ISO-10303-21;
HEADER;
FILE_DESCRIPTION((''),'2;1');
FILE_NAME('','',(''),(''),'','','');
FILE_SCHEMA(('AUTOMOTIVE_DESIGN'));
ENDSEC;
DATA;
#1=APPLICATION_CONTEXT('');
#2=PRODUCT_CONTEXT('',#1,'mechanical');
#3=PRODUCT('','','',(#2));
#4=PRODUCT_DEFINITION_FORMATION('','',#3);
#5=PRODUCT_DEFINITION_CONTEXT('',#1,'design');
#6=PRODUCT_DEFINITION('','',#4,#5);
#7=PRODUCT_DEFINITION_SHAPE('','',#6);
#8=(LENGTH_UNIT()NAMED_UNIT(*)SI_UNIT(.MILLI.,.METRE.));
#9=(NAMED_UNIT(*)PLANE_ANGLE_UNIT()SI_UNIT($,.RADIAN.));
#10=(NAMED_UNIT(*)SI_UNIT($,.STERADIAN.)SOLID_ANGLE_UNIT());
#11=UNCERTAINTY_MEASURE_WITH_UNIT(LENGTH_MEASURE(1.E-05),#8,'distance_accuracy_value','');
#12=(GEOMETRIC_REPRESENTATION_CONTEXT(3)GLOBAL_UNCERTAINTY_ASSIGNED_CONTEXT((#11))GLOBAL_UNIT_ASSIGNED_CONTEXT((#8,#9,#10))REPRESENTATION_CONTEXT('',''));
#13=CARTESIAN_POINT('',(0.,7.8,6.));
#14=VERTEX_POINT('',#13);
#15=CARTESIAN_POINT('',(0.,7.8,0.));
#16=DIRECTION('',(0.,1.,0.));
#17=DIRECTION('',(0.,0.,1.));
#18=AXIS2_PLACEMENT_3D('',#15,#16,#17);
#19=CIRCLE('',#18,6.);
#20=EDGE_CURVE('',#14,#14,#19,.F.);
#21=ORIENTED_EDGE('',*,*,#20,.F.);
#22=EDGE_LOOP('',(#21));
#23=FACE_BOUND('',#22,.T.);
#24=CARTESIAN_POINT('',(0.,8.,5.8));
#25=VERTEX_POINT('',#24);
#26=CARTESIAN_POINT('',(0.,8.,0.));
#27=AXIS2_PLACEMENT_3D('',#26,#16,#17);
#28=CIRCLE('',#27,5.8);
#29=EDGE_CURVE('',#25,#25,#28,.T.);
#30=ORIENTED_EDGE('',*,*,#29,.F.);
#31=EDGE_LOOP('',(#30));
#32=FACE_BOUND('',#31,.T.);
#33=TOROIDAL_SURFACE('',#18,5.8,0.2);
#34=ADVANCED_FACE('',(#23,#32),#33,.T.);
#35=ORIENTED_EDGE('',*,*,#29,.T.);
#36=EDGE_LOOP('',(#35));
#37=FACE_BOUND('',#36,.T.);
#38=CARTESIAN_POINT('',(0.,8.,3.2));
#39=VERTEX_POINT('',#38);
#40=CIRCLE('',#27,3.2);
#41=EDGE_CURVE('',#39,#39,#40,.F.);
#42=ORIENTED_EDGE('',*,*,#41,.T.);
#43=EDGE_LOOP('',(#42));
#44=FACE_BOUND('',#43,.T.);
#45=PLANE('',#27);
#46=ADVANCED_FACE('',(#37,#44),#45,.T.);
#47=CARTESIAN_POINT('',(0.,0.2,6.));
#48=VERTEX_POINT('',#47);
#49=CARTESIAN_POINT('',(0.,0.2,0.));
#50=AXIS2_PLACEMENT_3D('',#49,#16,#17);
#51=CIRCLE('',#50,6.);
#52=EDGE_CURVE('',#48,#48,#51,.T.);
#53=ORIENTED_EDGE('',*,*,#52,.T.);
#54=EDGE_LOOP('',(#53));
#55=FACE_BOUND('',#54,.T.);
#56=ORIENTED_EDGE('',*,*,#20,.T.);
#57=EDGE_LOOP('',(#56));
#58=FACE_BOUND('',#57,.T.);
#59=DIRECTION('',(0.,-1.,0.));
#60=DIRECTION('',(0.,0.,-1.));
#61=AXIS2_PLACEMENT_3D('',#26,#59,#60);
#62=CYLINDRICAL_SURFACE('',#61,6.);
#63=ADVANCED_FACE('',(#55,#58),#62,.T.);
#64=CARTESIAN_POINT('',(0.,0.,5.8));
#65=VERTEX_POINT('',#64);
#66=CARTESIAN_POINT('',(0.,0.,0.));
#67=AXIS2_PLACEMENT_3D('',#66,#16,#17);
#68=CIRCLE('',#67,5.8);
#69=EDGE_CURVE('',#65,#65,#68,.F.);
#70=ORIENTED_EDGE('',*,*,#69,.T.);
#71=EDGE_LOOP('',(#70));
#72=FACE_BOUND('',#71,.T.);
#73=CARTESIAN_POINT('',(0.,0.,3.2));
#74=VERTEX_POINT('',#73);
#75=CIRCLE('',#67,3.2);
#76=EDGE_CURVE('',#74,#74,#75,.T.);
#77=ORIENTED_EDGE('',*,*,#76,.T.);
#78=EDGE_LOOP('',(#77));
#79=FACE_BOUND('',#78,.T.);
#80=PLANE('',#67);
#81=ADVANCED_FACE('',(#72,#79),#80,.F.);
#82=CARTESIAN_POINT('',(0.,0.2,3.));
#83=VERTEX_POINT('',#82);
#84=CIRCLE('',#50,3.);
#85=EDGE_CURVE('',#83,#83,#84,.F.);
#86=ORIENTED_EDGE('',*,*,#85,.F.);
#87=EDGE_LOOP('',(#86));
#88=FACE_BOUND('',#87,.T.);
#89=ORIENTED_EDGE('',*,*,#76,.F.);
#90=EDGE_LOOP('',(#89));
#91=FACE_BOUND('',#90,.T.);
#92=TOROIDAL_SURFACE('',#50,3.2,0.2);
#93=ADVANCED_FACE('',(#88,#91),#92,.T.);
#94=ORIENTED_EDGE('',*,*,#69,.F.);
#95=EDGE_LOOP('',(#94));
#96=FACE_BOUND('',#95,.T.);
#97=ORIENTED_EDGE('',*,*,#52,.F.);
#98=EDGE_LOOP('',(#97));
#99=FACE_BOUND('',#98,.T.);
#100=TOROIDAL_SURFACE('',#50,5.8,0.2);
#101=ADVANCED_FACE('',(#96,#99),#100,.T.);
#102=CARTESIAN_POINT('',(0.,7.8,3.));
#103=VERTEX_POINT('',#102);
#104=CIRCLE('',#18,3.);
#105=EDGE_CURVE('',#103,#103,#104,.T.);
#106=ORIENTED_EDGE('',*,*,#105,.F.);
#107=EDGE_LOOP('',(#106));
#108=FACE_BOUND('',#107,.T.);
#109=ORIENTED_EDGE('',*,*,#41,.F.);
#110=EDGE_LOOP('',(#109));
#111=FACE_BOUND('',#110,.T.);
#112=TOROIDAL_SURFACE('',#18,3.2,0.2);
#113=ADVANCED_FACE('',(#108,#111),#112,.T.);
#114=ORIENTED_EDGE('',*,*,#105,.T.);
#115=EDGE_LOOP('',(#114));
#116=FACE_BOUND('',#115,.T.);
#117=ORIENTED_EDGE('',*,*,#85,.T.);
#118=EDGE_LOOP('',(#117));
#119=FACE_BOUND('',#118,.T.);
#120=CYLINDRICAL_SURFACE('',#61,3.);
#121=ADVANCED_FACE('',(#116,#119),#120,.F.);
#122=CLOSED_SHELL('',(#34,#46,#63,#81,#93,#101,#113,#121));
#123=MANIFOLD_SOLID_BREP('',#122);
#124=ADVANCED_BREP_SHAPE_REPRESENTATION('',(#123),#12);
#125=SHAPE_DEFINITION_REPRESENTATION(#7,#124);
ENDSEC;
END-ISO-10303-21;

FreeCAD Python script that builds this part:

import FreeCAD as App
import Part
import Sketcher

V = App.Vector


def edges_at(feature, points):
    """Names of the edges that pass closest to the given points."""
    edges = feature.Shape.Edges
    near = lambda p: min(range(len(edges)), key=lambda i: edges[i].distToShape(Part.Vertex(*p))[0])
    return sorted({f"Edge{near(p) + 1}" for p in points})

doc = App.newDocument("Part")
body = doc.addObject("PartDesign::Body", "Body")

# Sketch on XZ plane
sketch1 = body.newObject("Sketcher::SketchObject", "Sketch")
sketch1.AttachmentSupport = (doc.getObject("XZ_Plane"), [""])
sketch1.MapMode = "FlatFace"
sketch1.addGeometry([
    Part.Circle(V(0, 0, 0), V(0, 0, 1), 6),
    Part.Circle(V(0, 0, 0), V(0, 0, 1), 3),
], False)
sketch1.addConstraint([
    Sketcher.Constraint("Coincident", 0, 3, -1, 1),
    Sketcher.Constraint("Coincident", 1, 3, -1, 1),
    Sketcher.Constraint("Diameter", 0, 12.0),
    Sketcher.Constraint("Diameter", 1, 6.0),
])
pad1 = body.newObject("PartDesign::Pad", "Pad")
pad1.Profile = sketch1
pad1.Length = 8
pad1.Reversed = True
doc.recompute()

fillet = body.newObject("PartDesign::Fillet", "Fillet")
fillet.Base = (pad1, edges_at(pad1, [
    (-6, 0, 0),
    (-6, 8, 0),
    (-3, 0, 0),
    (-3, 8, 0),
]))
fillet.Radius = 0.2

doc.recompute()
